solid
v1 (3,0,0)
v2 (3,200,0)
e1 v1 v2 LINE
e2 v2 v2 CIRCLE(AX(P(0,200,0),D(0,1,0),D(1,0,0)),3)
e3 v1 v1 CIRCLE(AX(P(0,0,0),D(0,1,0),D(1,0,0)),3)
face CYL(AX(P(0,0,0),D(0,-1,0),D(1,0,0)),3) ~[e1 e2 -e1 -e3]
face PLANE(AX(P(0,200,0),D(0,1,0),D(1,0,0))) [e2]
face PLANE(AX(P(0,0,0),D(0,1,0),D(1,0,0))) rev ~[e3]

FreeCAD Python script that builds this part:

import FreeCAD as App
import Part
import Sketcher

V = App.Vector

doc = App.newDocument("Part")
body = doc.addObject("PartDesign::Body", "Body")

sketch1 = body.newObject("Sketcher::SketchObject", "Sketch")
sketch1.AttachmentSupport = (doc.getObject("XZ_Plane"), [""])
sketch1.MapMode = "FlatFace"
sketch1.addGeometry(Part.Circle(V(0, 0, 0), V(0, 0, 1), 3), False)
sketch1.addConstraint([
    Sketcher.Constraint("Coincident", 0, 3, -1, 1),
    Sketcher.Constraint("Diameter", 0, 6.0),
])
pad1 = body.newObject("PartDesign::Pad", "Pad")
pad1.Profile = sketch1
pad1.Length = 200
pad1.Reversed = True

doc.recompute()
